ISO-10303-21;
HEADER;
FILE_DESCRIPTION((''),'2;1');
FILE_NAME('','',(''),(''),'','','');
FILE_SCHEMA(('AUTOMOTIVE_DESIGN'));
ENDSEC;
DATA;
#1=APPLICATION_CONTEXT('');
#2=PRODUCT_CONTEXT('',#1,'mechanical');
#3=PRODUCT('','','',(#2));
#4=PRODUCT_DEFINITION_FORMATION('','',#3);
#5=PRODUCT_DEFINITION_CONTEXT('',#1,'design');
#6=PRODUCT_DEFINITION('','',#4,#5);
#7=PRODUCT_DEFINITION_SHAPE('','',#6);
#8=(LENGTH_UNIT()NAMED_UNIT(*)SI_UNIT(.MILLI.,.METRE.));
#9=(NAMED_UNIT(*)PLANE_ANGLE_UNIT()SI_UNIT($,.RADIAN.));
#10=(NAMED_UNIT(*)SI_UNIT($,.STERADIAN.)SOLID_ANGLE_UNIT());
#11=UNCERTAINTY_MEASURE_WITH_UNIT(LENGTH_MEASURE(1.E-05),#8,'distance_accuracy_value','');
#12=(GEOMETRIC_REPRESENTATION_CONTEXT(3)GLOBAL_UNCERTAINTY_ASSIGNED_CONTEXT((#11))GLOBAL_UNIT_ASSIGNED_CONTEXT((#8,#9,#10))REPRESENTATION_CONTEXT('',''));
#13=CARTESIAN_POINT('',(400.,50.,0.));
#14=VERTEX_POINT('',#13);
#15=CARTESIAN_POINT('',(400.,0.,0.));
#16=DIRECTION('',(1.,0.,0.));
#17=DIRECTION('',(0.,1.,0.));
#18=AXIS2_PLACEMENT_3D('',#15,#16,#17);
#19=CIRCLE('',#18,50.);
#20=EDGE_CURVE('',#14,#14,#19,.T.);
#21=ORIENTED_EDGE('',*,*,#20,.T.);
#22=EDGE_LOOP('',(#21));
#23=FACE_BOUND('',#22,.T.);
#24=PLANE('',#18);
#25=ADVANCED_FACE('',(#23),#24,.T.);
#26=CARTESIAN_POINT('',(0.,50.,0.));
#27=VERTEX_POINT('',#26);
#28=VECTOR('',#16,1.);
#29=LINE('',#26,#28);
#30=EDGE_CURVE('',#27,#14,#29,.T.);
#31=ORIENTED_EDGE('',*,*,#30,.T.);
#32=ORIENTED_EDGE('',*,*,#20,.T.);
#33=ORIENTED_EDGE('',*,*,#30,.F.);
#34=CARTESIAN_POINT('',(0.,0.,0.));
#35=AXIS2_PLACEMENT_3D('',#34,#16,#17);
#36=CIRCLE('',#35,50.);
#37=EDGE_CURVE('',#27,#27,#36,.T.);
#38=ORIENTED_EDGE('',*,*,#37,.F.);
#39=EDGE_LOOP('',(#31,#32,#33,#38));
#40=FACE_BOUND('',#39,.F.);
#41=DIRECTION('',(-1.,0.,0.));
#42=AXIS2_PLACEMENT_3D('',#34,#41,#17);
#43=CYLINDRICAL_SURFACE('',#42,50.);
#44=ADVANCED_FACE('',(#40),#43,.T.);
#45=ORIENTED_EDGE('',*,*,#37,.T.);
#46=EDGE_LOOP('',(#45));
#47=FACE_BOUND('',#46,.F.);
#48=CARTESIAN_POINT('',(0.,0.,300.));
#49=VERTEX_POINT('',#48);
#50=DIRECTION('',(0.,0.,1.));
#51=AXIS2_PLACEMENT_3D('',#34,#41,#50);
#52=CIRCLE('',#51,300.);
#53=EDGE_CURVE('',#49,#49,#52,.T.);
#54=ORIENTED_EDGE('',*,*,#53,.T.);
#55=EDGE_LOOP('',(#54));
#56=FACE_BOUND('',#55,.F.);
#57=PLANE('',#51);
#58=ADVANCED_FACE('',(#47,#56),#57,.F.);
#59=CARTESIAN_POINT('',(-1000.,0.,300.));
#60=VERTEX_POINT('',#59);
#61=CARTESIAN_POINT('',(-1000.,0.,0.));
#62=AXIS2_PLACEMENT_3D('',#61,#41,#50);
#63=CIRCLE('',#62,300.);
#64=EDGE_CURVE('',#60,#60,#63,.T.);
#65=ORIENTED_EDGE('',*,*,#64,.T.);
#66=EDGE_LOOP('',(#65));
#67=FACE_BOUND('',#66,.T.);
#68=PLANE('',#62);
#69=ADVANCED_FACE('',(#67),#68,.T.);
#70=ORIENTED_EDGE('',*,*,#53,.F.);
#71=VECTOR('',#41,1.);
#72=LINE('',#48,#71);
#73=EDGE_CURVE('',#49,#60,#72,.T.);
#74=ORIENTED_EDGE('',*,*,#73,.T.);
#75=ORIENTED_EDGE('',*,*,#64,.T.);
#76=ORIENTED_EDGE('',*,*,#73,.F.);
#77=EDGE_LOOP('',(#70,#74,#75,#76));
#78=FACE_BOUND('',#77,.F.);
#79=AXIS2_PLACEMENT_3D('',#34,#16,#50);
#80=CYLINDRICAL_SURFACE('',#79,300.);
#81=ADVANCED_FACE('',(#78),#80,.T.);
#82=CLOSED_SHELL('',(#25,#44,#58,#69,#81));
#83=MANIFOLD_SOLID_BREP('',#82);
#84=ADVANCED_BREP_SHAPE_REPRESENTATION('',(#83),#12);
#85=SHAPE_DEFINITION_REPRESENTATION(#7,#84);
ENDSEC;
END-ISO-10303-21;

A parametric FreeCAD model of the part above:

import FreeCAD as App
import Part
import Sketcher

V = App.Vector

doc = App.newDocument("Part")
body = doc.addObject("PartDesign::Body", "Body")

# Sketch on YZ plane
sketch1 = doc.addObject("Sketcher::SketchObject", "Sketch")
body.addObject(sketch1)
sketch1.AttachmentSupport = (doc.YZ_Plane, [""])
sketch1.MapMode = "FlatFace"
sketch1.addGeometry(Part.Circle(V(0, 0, 0), V(0, 0, 1), 50), False)
sketch1.addConstraint([
    Sketcher.Constraint("Coincident", 0, 3, -1, 1),
    Sketcher.Constraint("Diameter", 0, 100.0),
])
pad1 = doc.addObject("PartDesign::Pad", "Pad")
body.addObject(pad1)
pad1.Profile = sketch1
pad1.Length = 400

# Sketch on YZ plane
sketch2 = doc.addObject("Sketcher::SketchObject", "Sketch001")
body.addObject(sketch2)
sketch2.AttachmentSupport = (doc.YZ_Plane, [""])
sketch2.MapMode = "FlatFace"
sketch2.addGeometry(Part.Circle(V(0, 0, 0), V(0, 0, 1), 300), False)
sketch2.addConstraint([
    Sketcher.Constraint("Coincident", 0, 3, -1, 1),
    Sketcher.Constraint("Diameter", 0, 600.0),
])
pad2 = doc.addObject("PartDesign::Pad", "Pad001")
body.addObject(pad2)
pad2.Profile = sketch2
pad2.Length = 1000
pad2.Reversed = True

doc.recompute()
